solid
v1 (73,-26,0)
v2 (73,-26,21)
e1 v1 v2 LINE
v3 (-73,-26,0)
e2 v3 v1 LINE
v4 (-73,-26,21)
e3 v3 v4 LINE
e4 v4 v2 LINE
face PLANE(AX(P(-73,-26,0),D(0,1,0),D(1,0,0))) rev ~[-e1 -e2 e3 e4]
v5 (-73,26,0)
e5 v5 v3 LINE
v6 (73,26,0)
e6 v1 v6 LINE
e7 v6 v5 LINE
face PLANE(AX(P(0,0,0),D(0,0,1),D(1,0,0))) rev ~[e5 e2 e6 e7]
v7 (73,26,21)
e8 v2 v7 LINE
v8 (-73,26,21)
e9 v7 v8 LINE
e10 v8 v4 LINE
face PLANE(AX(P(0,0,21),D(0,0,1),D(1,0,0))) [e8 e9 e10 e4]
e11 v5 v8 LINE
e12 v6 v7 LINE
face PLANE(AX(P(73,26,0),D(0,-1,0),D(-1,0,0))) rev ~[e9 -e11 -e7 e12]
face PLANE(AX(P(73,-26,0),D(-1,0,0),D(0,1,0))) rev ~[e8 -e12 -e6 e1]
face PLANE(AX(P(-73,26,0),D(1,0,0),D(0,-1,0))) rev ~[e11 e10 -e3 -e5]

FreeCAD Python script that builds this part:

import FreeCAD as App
import Part
import Sketcher

V = App.Vector
Q = App.Units.Quantity


def add_polygon(sketch, points):
    """Adds a closed chain of lines whose ends are joined by coincident constraints."""
    first, n = sketch.GeometryCount, len(points)
    for a, b in zip(points, points[1:] + points[:1]):
        sketch.addGeometry(Part.LineSegment(App.Vector(*a, 0), App.Vector(*b, 0)), False)
    for i in range(n):
        sketch.addConstraint(Sketcher.Constraint("Coincident", first + i, 2, first + (i + 1) % n, 1))

doc = App.newDocument("Part")
params = doc.addObject("Spreadsheet::Sheet", "Params")
for row, (alias, value) in enumerate([
    ("sketch1_width", "146 mm"),
    ("sketch1_height", "52 mm"),
    ("pad1_length", "21 mm"),
], start=1):
    params.set(f"A{row}", alias)
    params.set(f"B{row}", "=" + value)
    params.setAlias(f"B{row}", alias)

body = doc.addObject("PartDesign::Body", "Body")

sketch1 = body.newObject("Sketcher::SketchObject", "Sketch")
sketch1.AttachmentSupport = (doc.getObject("XY_Plane"), [""])
sketch1.MapMode = "FlatFace"
add_polygon(sketch1, [(-73, 26), (-73, -26), (73, -26), (73, 26)])
sketch1.addConstraint([
    Sketcher.Constraint("Vertical", 0),
    Sketcher.Constraint("Horizontal", 1),
    Sketcher.Constraint("Vertical", 2),
    Sketcher.Constraint("Horizontal", 3),
    Sketcher.Constraint("Symmetric", 0, 2, 2, 2, -1, 1),
    Sketcher.Constraint("DistanceX", 1, 1, 1, 2, Q("146 mm")),
    Sketcher.Constraint("DistanceY", 0, 2, 0, 1, Q("52 mm")),
])
sketch1.setExpression("Constraints[9]", "Params.sketch1_width")
sketch1.setExpression("Constraints[10]", "Params.sketch1_height")
pad1 = body.newObject("PartDesign::Pad", "Pad")
pad1.Profile = sketch1
pad1.setExpression("Length", "Params.pad1_length")

doc.recompute()
